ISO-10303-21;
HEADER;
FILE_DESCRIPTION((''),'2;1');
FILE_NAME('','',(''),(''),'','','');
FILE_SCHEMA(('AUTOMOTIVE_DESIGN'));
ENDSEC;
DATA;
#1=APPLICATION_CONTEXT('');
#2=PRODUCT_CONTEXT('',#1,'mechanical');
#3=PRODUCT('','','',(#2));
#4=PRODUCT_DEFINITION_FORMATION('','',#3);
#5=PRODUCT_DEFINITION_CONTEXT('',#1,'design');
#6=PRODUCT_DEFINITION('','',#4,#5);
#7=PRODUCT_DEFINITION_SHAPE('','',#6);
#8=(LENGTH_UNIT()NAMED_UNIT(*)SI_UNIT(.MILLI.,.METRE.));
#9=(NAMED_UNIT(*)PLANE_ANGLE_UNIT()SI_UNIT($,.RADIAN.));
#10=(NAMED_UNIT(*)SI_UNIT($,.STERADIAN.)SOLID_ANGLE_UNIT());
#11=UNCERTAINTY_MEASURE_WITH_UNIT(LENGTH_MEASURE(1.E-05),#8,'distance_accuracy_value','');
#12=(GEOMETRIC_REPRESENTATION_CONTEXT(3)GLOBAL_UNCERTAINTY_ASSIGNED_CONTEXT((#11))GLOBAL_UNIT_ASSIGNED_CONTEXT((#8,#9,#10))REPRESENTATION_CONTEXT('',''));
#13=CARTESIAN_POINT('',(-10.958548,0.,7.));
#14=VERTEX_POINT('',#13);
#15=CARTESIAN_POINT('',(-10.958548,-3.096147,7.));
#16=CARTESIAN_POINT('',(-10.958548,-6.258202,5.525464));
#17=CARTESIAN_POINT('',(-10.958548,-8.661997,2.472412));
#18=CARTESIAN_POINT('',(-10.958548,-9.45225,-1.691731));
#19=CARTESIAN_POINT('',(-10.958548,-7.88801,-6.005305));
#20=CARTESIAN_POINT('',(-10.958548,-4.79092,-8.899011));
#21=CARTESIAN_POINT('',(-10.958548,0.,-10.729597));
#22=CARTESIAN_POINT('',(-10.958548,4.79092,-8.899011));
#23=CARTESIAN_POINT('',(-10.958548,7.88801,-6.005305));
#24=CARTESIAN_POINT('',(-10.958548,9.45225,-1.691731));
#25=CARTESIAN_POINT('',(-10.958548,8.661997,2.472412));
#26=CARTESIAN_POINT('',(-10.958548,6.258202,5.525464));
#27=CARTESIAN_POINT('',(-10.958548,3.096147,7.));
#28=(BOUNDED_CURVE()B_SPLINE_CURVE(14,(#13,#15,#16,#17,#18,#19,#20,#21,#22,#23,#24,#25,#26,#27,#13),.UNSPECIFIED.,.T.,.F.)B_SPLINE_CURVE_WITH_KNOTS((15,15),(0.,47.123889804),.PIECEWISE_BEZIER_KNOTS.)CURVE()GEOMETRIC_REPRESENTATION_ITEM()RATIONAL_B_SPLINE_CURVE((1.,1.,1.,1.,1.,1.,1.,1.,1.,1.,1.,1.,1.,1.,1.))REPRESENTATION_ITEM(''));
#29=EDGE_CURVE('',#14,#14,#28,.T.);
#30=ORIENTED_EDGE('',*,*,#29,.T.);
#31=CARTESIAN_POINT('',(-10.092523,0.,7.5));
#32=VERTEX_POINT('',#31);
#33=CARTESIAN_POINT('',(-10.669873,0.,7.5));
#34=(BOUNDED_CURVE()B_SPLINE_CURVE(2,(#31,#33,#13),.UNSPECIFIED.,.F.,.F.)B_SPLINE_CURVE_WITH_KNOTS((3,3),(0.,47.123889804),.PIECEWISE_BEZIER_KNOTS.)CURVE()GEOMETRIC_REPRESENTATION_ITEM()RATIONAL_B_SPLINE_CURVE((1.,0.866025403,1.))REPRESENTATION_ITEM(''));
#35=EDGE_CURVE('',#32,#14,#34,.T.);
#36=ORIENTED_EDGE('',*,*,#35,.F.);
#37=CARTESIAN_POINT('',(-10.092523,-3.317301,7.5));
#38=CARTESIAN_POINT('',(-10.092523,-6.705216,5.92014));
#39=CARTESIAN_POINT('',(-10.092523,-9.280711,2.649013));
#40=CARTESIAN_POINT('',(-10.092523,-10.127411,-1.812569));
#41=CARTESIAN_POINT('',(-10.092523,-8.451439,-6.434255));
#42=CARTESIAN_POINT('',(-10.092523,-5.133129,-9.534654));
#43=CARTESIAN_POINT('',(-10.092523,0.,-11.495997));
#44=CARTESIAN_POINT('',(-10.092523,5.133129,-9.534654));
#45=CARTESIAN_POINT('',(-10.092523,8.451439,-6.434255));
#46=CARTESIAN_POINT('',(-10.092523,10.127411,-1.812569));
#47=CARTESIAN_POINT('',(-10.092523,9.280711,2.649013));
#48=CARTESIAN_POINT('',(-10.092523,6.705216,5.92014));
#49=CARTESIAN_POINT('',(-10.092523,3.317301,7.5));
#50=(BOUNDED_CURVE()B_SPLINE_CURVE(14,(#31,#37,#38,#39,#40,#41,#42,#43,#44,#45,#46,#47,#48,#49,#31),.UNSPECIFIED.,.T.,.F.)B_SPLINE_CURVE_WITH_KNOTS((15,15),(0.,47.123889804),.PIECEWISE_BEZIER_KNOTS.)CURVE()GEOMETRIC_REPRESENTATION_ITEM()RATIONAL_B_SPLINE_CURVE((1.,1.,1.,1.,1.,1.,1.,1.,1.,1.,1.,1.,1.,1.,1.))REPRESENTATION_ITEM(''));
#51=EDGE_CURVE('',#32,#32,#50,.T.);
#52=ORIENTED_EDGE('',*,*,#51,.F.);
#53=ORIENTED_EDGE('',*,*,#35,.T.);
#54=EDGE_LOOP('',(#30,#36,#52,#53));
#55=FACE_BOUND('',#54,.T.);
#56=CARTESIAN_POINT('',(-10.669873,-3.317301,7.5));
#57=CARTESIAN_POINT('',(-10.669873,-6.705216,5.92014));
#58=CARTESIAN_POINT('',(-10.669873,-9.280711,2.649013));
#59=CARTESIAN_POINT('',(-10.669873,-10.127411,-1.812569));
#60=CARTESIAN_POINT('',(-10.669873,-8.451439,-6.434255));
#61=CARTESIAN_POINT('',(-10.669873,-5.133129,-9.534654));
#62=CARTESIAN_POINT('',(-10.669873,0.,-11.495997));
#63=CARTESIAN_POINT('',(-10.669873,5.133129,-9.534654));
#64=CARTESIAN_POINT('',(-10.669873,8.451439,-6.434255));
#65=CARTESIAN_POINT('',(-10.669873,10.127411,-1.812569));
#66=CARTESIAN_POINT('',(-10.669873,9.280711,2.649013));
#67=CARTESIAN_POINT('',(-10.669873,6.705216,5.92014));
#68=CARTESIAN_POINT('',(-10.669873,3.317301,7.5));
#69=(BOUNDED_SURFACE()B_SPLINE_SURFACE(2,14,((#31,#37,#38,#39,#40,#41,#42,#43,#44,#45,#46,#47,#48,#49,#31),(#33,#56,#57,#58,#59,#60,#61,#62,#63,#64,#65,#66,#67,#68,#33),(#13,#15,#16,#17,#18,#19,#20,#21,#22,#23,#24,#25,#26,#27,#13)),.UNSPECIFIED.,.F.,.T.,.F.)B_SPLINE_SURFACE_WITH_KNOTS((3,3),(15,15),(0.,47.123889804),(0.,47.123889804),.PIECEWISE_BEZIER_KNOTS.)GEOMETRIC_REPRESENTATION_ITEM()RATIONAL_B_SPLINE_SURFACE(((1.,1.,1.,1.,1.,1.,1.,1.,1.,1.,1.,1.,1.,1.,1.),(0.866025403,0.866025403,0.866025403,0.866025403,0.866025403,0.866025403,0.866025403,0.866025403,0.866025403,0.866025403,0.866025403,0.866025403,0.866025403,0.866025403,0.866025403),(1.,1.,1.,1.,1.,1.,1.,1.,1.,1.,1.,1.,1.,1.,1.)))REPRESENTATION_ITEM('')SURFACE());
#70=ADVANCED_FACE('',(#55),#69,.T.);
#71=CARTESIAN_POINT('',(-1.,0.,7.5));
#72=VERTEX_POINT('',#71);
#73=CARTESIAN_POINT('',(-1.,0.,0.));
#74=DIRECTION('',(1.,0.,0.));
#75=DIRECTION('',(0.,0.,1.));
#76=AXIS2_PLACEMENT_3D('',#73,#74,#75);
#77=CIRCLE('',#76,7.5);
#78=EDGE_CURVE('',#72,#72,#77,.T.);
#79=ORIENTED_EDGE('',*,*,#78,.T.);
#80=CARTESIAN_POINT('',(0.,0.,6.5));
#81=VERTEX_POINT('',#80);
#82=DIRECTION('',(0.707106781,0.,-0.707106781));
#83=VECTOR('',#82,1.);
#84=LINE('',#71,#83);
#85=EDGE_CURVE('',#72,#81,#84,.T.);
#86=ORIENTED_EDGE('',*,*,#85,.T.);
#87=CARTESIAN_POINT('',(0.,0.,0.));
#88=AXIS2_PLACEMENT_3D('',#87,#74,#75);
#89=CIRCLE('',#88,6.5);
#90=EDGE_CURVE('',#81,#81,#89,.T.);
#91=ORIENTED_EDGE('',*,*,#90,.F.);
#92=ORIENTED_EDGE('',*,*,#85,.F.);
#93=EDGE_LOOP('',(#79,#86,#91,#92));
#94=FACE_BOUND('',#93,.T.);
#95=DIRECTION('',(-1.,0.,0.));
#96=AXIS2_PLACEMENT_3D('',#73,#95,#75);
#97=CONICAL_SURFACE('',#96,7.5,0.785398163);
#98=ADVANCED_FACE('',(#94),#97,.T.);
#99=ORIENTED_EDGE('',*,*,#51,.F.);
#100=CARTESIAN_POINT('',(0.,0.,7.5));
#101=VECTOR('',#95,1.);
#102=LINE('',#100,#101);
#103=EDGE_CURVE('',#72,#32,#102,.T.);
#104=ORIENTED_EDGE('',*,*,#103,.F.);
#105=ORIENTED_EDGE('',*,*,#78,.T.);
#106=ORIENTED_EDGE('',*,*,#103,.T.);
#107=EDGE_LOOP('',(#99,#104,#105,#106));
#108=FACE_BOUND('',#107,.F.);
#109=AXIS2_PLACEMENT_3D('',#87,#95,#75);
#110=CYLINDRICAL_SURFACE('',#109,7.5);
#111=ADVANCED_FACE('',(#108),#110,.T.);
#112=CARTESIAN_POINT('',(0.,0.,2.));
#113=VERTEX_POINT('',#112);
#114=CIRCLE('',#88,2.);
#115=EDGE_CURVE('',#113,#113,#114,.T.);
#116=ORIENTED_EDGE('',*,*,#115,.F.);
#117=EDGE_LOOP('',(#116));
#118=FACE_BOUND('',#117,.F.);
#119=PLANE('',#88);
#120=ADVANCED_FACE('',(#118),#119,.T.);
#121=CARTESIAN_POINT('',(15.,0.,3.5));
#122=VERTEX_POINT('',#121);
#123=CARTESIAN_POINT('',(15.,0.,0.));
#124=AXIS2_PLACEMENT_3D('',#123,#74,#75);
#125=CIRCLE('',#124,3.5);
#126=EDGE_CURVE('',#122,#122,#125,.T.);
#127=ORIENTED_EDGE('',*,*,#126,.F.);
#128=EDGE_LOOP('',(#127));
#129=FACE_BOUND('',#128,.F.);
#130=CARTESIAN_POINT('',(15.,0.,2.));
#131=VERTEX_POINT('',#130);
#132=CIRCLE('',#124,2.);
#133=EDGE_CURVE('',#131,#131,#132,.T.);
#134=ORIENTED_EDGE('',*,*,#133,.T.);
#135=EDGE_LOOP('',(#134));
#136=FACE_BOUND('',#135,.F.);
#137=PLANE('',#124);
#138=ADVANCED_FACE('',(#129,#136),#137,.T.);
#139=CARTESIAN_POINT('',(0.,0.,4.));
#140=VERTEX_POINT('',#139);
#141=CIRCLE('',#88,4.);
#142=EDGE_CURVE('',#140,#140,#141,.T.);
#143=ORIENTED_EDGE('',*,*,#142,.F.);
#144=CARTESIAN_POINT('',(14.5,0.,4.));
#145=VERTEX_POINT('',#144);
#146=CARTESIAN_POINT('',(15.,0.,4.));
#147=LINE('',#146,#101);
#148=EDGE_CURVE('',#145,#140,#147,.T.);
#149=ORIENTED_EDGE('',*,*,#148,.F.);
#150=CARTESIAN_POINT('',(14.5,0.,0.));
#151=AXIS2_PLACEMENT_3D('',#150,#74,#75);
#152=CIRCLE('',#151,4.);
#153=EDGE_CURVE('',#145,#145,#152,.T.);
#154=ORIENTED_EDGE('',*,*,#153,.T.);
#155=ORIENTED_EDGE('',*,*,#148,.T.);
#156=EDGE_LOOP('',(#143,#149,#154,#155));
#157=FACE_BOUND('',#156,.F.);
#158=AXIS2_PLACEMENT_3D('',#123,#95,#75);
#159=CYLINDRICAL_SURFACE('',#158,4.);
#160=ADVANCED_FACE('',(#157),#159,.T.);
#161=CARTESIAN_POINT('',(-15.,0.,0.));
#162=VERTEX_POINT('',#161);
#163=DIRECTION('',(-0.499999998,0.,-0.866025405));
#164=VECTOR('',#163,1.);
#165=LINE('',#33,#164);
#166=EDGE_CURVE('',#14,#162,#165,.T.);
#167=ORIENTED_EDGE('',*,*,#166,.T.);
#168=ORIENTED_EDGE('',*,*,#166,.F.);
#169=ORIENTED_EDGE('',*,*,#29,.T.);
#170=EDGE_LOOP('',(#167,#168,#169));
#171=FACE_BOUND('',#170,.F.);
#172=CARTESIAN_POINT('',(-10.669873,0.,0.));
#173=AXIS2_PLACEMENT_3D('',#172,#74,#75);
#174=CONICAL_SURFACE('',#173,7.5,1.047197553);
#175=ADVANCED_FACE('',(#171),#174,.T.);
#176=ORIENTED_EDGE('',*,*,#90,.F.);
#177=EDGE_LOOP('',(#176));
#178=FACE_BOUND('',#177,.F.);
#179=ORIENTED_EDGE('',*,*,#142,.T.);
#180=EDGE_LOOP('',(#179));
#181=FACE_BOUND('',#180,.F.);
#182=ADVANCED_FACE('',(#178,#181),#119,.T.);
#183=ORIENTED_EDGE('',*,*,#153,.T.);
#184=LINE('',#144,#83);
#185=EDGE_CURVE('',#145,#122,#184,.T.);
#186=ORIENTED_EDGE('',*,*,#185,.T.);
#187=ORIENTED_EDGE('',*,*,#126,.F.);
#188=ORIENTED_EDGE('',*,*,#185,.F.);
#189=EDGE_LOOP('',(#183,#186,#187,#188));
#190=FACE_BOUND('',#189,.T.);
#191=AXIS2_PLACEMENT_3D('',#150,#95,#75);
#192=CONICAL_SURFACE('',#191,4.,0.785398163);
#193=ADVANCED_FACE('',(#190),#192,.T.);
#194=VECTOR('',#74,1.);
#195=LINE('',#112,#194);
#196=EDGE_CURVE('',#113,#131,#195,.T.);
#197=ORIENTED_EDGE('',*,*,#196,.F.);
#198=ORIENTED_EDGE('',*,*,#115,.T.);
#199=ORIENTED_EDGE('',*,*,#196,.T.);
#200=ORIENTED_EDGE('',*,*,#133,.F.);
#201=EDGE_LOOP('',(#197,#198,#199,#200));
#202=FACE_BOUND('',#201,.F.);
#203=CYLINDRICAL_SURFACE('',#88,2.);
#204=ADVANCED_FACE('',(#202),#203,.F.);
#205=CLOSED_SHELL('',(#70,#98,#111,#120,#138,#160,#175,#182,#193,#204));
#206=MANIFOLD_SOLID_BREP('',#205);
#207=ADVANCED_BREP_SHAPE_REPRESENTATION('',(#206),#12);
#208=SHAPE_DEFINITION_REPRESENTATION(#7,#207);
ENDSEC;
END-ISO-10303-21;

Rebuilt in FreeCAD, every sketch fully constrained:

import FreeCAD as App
import Part
import Sketcher

V = App.Vector
Q = App.Units.Quantity


def edges_at(feature, points):
    """Names of the edges that pass closest to the given points."""
    edges = feature.Shape.Edges
    near = lambda p: min(range(len(edges)), key=lambda i: edges[i].distToShape(Part.Vertex(*p))[0])
    return sorted({f"Edge{near(p) + 1}" for p in points})

doc = App.newDocument("Part")
body = doc.addObject("PartDesign::Body", "Body")

# Sketch on XZ plane
sketch1 = body.newObject("Sketcher::SketchObject", "Sketch")
sketch1.AttachmentSupport = (doc.getObject("XZ_Plane"), [""])
sketch1.MapMode = "FlatFace"
sketch1.addGeometry([
    Part.LineSegment(V(0, 7.5, 0), V(-10.7, 7.5, 0)),  # 0
    Part.LineSegment(V(-10.7, 7.5, 0), V(-15, 0, 0)),  # 1
    Part.LineSegment(V(-15, 0, 0), V(0, 0, 0)),  # 2
    Part.LineSegment(V(0, 0, 0), V(0, 2, 0)),  # 3
    Part.LineSegment(V(0, 2, 0), V(15, 2, 0)),  # 4
    Part.LineSegment(V(15, 2, 0), V(15, 4, 0)),  # 5
    Part.LineSegment(V(15, 4, 0), V(0, 4, 0)),  # 6
    Part.LineSegment(V(0, 4, 0), V(0, 7.5, 0)),  # 7
], False)
sketch1.addConstraint([
    Sketcher.Constraint("Coincident", 0, 2, 1, 1),
    Sketcher.Constraint("Coincident", 1, 2, 2, 1),
    Sketcher.Constraint("Coincident", 2, 2, 3, 1),
    Sketcher.Constraint("Coincident", 3, 2, 4, 1),
    Sketcher.Constraint("Coincident", 4, 2, 5, 1),
    Sketcher.Constraint("Coincident", 5, 2, 6, 1),
    Sketcher.Constraint("Coincident", 6, 2, 7, 1),
    Sketcher.Constraint("Coincident", 7, 2, 0, 1),
    Sketcher.Constraint("Horizontal", 0),
    Sketcher.Constraint("Horizontal", 2),
    Sketcher.Constraint("Vertical", 3),
    Sketcher.Constraint("Horizontal", 4),
    Sketcher.Constraint("Vertical", 5),
    Sketcher.Constraint("Horizontal", 6),
    Sketcher.Constraint("Vertical", 7),
    Sketcher.Constraint("Coincident", 2, 2, -1, 1),
    Sketcher.Constraint("PointOnObject", 6, 2, -2),
    Sketcher.Constraint("Equal", 2, 4),
    Sketcher.Constraint("Equal", 3, 5),
    Sketcher.Constraint("DistanceX", 2, 1, 2, 2, Q("15 mm")),
    Sketcher.Constraint("DistanceY", 3, 1, 3, 2, Q("2 mm")),
    Sketcher.Constraint("Angle", 1, Q("-120 deg")),
    Sketcher.Constraint("DistanceY", 7, 1, 7, 2, Q("3.5 mm")),
])
revolution = body.newObject("PartDesign::Revolution", "Revolution")
revolution.Profile = sketch1
revolution.ReferenceAxis = (sketch1, ["H_Axis"])
revolution.Angle = 360
doc.recompute()

fillet = body.newObject("PartDesign::Fillet", "Fillet")
fillet.Base = (revolution, edges_at(revolution, [(-10.67, 0, -7.5)]))
fillet.Radius = 1
doc.recompute()

chamfer = body.newObject("PartDesign::Chamfer", "Chamfer")
chamfer.Base = (fillet, edges_at(fillet, [(0, 0, -7.5)]))
chamfer.Size = 1
doc.recompute()

chamfer2 = body.newObject("PartDesign::Chamfer", "Chamfer001")
chamfer2.Base = (chamfer, edges_at(chamfer, [(15, 0, -4)]))
chamfer2.Size = 0.5

doc.recompute()
